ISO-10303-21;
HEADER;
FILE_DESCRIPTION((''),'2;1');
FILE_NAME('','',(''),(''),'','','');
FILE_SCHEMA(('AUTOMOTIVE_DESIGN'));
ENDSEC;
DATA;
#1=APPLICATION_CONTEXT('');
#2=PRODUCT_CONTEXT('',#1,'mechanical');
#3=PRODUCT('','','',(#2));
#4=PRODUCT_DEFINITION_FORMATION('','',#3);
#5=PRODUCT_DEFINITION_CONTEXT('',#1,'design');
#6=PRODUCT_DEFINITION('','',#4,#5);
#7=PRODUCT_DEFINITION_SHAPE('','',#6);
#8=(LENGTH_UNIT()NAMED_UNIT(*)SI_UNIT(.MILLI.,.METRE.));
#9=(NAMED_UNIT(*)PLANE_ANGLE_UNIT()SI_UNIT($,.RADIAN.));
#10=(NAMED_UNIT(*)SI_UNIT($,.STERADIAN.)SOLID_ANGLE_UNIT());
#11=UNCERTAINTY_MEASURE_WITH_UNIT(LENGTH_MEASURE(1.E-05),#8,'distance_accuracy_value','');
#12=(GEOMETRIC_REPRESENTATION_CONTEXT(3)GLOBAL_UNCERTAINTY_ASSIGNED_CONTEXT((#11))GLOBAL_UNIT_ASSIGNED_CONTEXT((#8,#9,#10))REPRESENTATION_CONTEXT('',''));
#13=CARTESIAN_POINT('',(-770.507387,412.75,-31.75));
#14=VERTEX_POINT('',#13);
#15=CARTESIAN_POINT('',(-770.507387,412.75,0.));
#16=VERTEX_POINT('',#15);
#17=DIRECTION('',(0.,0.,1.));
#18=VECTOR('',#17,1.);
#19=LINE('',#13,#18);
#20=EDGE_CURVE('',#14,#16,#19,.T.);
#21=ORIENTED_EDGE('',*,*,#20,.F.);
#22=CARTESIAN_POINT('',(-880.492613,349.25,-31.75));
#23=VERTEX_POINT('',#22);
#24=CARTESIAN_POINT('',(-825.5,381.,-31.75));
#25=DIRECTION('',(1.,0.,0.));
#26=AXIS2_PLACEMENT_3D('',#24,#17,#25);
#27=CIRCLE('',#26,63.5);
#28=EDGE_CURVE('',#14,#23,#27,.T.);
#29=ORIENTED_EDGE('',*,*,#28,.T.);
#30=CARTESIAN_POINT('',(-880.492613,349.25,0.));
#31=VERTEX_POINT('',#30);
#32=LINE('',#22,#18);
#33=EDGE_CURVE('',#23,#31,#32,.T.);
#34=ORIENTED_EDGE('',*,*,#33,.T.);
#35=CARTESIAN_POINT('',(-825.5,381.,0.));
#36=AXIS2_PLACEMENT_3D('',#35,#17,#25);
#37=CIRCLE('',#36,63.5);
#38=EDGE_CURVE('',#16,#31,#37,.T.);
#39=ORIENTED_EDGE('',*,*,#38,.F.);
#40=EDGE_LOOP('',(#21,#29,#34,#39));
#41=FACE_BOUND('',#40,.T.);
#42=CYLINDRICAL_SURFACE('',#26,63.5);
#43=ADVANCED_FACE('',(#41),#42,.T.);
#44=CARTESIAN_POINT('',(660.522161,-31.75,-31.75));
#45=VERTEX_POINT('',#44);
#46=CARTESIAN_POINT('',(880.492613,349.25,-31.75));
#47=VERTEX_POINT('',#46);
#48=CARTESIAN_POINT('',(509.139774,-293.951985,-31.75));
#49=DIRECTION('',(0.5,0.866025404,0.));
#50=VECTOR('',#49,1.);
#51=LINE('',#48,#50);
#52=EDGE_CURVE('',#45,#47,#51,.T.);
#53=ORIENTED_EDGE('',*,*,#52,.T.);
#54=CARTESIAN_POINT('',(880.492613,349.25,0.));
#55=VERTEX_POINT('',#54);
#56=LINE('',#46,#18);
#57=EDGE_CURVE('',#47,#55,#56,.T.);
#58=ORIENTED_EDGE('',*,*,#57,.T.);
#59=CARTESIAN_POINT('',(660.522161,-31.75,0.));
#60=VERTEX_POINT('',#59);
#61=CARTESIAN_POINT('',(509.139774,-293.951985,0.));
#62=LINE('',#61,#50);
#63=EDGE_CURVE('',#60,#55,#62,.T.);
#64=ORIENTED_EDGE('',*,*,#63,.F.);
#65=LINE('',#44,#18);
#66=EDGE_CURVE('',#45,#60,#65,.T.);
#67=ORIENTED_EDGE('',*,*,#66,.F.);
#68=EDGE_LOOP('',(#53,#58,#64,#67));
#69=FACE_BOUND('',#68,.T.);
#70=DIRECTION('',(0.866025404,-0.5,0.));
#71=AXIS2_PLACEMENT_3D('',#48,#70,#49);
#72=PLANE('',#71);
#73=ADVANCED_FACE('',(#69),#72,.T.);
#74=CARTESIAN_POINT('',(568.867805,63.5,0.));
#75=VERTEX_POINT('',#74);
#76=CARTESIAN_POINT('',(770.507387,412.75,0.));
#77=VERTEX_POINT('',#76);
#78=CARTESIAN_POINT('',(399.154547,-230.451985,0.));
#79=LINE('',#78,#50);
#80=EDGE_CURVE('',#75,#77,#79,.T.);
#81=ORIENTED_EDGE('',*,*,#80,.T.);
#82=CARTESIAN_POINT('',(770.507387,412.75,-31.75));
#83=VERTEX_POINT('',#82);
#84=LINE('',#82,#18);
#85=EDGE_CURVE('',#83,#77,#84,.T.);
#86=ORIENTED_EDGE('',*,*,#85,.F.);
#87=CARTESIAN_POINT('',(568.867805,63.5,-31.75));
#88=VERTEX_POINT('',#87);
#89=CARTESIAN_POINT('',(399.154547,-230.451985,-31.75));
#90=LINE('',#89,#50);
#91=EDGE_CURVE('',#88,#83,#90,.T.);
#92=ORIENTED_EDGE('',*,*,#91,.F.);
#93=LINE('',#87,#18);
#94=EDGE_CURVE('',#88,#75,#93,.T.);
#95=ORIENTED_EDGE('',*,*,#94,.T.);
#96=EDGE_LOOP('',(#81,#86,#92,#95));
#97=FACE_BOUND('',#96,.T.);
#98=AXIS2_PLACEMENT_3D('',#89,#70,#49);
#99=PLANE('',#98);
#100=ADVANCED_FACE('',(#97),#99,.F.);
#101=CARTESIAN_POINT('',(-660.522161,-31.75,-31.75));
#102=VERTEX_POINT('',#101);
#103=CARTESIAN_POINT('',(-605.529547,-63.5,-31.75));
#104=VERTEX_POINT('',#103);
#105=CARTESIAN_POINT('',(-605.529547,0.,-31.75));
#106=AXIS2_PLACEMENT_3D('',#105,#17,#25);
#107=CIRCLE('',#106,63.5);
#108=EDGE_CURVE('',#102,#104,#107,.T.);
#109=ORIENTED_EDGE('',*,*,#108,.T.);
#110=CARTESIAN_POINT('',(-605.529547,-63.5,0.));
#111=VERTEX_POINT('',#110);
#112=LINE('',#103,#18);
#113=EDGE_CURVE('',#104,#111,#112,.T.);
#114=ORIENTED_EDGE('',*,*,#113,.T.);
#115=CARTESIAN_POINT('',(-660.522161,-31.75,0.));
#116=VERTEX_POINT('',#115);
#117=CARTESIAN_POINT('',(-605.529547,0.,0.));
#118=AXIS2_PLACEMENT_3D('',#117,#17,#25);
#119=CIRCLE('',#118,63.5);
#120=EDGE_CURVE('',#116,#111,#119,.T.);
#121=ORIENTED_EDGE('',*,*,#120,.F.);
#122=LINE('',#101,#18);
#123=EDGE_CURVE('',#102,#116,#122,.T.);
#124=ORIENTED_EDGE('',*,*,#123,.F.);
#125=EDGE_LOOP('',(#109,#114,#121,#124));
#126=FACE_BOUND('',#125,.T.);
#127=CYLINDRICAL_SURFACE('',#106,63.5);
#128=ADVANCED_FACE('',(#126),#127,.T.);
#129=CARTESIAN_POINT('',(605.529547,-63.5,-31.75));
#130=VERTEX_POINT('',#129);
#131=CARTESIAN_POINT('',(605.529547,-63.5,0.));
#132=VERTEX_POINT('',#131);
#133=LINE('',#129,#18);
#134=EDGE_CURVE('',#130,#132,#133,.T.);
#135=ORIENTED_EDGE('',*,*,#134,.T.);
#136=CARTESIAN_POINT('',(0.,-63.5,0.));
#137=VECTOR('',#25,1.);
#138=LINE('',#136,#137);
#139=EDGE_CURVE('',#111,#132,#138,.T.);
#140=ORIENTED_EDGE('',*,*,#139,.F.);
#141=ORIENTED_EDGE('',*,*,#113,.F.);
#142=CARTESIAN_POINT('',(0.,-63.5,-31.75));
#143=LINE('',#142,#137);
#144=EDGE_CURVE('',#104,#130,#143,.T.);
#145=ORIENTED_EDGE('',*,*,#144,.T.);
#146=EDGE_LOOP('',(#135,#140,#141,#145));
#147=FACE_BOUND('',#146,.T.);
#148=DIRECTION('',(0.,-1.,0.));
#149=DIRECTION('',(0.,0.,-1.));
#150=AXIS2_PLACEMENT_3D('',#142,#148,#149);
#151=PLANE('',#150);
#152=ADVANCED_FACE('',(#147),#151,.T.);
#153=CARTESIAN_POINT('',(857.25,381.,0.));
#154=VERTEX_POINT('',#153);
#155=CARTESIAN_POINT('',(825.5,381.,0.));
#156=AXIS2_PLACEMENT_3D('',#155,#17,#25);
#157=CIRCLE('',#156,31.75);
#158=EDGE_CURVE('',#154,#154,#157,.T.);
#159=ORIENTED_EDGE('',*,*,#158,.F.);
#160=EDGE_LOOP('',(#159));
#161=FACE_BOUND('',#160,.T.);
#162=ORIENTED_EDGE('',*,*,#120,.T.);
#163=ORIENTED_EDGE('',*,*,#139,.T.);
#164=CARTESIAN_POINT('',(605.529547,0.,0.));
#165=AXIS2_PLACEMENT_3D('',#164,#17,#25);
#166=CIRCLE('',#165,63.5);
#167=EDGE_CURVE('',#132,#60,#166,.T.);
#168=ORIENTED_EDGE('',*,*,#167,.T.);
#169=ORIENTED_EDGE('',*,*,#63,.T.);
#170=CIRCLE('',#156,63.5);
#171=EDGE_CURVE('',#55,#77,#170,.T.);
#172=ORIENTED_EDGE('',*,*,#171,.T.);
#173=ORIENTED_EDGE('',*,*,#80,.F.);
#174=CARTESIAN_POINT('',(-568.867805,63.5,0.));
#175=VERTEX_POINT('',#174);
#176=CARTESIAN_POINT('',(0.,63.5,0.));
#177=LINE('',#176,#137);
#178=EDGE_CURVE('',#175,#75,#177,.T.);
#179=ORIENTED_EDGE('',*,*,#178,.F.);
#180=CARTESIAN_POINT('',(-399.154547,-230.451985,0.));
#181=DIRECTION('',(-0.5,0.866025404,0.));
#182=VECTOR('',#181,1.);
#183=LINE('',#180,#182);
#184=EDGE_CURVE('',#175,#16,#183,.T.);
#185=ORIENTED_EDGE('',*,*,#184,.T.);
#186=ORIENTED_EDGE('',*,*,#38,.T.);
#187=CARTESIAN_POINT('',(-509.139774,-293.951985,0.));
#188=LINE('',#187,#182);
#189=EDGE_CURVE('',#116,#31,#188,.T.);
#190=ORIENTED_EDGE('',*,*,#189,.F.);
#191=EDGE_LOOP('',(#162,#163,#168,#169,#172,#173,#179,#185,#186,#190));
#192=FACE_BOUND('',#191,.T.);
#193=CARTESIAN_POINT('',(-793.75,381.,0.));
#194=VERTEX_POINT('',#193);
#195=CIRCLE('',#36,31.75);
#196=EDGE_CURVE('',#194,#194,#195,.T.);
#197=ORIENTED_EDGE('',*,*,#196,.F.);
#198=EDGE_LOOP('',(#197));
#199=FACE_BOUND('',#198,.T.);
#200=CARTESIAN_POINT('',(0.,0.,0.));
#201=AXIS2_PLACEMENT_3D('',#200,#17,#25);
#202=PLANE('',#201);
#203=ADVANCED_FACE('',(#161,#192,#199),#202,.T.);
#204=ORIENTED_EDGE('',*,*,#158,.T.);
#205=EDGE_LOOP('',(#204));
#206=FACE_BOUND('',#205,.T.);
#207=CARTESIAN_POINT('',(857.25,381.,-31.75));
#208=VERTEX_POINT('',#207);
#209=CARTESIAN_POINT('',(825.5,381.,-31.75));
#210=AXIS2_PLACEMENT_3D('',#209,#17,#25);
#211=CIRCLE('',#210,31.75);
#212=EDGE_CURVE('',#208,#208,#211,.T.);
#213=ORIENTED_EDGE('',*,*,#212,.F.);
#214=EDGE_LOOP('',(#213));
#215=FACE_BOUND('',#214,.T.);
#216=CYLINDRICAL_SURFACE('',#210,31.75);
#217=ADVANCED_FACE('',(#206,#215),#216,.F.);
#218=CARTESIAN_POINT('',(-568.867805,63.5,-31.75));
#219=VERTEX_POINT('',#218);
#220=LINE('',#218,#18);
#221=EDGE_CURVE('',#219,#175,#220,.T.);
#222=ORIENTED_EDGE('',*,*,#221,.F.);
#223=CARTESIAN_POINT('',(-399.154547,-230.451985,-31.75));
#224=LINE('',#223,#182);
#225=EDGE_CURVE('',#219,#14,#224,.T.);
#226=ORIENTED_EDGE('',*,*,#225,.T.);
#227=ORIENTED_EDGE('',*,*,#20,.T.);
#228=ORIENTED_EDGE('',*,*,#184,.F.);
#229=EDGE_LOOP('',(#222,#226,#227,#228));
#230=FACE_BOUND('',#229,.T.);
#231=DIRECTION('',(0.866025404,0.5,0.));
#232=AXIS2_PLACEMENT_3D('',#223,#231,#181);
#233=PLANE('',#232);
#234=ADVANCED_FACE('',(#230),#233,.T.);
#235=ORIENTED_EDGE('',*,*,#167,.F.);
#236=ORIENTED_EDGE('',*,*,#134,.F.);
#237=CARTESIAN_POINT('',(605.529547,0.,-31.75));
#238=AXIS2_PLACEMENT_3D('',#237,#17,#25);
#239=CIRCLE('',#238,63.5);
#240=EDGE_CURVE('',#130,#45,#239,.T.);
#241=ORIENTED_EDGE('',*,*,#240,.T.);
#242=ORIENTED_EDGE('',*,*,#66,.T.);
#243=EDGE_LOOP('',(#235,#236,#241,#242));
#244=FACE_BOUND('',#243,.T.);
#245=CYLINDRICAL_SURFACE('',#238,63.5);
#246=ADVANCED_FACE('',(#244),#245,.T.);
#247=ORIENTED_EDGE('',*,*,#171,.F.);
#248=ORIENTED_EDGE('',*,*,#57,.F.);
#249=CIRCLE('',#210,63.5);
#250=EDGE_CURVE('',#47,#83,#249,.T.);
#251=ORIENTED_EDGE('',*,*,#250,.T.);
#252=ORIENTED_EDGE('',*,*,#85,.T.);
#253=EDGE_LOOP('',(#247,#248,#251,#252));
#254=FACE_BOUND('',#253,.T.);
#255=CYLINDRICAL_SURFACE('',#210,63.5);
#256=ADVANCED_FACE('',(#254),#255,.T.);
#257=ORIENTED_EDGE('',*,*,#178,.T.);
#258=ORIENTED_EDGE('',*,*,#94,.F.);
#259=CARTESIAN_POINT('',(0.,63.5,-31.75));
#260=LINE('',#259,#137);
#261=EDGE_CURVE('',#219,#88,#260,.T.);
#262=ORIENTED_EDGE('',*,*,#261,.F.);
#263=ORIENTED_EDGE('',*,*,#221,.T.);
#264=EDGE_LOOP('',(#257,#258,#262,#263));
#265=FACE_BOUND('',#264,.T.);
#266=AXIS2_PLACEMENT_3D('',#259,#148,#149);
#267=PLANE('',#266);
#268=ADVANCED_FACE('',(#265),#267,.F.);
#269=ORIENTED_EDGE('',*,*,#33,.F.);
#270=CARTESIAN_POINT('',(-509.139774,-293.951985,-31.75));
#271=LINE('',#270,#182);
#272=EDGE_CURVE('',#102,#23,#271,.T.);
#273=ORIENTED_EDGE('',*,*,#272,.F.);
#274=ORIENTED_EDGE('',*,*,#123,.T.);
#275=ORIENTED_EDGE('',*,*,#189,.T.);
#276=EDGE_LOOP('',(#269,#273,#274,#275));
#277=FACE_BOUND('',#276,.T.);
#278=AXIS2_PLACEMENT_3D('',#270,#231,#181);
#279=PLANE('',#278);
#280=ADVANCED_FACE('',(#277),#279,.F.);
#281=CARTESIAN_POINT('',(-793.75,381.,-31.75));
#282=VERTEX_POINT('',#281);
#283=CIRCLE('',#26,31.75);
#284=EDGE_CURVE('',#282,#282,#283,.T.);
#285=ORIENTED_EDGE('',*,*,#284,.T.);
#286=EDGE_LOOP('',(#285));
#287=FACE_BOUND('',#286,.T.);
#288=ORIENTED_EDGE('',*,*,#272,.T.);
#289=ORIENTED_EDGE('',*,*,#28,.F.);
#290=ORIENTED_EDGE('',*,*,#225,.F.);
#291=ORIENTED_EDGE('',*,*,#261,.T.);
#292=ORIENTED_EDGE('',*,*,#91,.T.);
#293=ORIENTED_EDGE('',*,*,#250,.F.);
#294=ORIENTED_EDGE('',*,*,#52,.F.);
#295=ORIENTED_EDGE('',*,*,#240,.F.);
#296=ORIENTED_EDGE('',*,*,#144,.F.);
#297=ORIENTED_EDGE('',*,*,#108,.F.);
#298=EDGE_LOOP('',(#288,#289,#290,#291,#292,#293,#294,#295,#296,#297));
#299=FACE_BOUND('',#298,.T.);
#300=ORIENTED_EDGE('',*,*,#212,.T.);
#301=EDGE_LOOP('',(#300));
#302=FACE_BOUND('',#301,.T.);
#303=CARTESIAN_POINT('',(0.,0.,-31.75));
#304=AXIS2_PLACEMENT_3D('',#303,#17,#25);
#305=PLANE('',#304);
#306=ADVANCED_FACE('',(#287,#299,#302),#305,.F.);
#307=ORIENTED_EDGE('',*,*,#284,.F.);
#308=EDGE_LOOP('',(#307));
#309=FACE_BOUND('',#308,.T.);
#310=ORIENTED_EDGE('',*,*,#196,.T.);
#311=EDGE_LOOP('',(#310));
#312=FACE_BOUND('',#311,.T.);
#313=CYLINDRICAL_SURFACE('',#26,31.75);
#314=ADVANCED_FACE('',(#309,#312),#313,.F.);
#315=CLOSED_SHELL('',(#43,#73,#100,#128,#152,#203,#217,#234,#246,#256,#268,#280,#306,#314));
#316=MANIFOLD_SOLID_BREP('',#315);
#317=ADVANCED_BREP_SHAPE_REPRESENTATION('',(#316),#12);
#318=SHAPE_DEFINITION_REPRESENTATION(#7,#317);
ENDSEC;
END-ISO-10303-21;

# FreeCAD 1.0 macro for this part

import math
import FreeCAD as App
import Part
import Sketcher
Q = App.Units.Quantity

doc = App.newDocument("Part")
body = doc.addObject("PartDesign::Body", "Body")

sketch1 = body.newObject("Sketcher::SketchObject", "Sketch")
sketch1.AttachmentSupport = (doc.getObject("XY_Plane"), [""])
sketch1.MapMode = "FlatFace"
sketch1.addGeometry([
    Part.ArcOfCircle(Part.Circle(App.Vector(-606, 0, 0), App.Vector(0, 0, 1), 64), math.radians(-150), math.radians(-90)),
    Part.LineSegment(App.Vector(-606, -64, 0), App.Vector(606, -64, 0)),
    Part.ArcOfCircle(Part.Circle(App.Vector(606, 0, 0), App.Vector(0, 0, 1), 64), math.radians(-90), math.radians(-30)),
    Part.LineSegment(App.Vector(661, -32, 0), App.Vector(880, 349, 0)),
    Part.ArcOfCircle(Part.Circle(App.Vector(826, 381, 0), App.Vector(0, 0, 1), 64), math.radians(-30), math.radians(150)),
    Part.LineSegment(App.Vector(771, 413, 0), App.Vector(569, 64, 0)),
    Part.LineSegment(App.Vector(569, 64, 0), App.Vector(-569, 64, 0)),
    Part.LineSegment(App.Vector(-569, 64, 0), App.Vector(-771, 413, 0)),
    Part.ArcOfCircle(Part.Circle(App.Vector(-826, 381, 0), App.Vector(0, 0, 1), 64), math.radians(30), math.radians(210)),
    Part.LineSegment(App.Vector(-880, 349, 0), App.Vector(-661, -32, 0)),
], False)
sketch1.addConstraint([
    Sketcher.Constraint("Tangent", 0, 2, 1, 1),
    Sketcher.Constraint("Tangent", 1, 2, 2, 1),
    Sketcher.Constraint("Tangent", 2, 2, 3, 1),
    Sketcher.Constraint("Tangent", 3, 2, 4, 1),
    Sketcher.Constraint("Tangent", 4, 2, 5, 1),
    Sketcher.Constraint("Coincident", 5, 2, 6, 1),
    Sketcher.Constraint("Coincident", 6, 2, 7, 1),
    Sketcher.Constraint("Tangent", 7, 2, 8, 1),
    Sketcher.Constraint("Tangent", 8, 2, 9, 1),
    Sketcher.Constraint("Tangent", 9, 2, 0, 1),
    Sketcher.Constraint("Horizontal", 1),
    Sketcher.Constraint("Horizontal", 6),
    Sketcher.Constraint("Equal", 0, 2),
    Sketcher.Constraint("Equal", 2, 4),
    Sketcher.Constraint("Equal", 4, 8),
    Sketcher.Constraint("Symmetric", 0, 3, 2, 3, -1, 1),
    Sketcher.Constraint("Symmetric", 4, 3, 8, 3, -2),
    Sketcher.Constraint("Parallel", 3, 5),
    Sketcher.Constraint("Parallel", 7, 9),
    Sketcher.Constraint("Radius", 0, Q("2.5 in")),
    Sketcher.Constraint("DistanceY", -1, 1, 4, 3, Q("15 in")),
    Sketcher.Constraint("Angle", 3, Q("60 deg")),
    Sketcher.Constraint("DistanceX", 8, 3, 4, 3, Q("65 in")),
    Sketcher.Constraint("DistanceY", 1, 2, 5, 2, Q("5 in")),
])
pad1 = body.newObject("PartDesign::Pad", "Pad")
pad1.Profile = sketch1
pad1.Length = Q("1.25 in")
pad1.Reversed = True

sketch2 = body.newObject("Sketcher::SketchObject", "Sketch001")
sketch2.AttachmentSupport = (doc.getObject("XY_Plane"), [""])
sketch2.MapMode = "FlatFace"
sketch2.addGeometry([
    Part.Circle(App.Vector(826, 381, 0), App.Vector(0, 0, 1), 32),
    Part.Circle(App.Vector(-826, 381, 0), App.Vector(0, 0, 1), 32),
], False)
sketch2.addConstraint([
    Sketcher.Constraint("Equal", 0, 1),
    Sketcher.Constraint("Symmetric", 0, 3, 1, 3, -2),
    Sketcher.Constraint("Diameter", 0, Q("2.5 in")),
    Sketcher.Constraint("DistanceY", -1, 1, 0, 3, Q("15 in")),
    Sketcher.Constraint("DistanceX", 1, 3, 0, 3, Q("65 in")),
])
pocket1 = body.newObject("PartDesign::Pocket", "Pocket")
pocket1.Profile = sketch2
pocket1.Type = "ThroughAll"

doc.recompute()
